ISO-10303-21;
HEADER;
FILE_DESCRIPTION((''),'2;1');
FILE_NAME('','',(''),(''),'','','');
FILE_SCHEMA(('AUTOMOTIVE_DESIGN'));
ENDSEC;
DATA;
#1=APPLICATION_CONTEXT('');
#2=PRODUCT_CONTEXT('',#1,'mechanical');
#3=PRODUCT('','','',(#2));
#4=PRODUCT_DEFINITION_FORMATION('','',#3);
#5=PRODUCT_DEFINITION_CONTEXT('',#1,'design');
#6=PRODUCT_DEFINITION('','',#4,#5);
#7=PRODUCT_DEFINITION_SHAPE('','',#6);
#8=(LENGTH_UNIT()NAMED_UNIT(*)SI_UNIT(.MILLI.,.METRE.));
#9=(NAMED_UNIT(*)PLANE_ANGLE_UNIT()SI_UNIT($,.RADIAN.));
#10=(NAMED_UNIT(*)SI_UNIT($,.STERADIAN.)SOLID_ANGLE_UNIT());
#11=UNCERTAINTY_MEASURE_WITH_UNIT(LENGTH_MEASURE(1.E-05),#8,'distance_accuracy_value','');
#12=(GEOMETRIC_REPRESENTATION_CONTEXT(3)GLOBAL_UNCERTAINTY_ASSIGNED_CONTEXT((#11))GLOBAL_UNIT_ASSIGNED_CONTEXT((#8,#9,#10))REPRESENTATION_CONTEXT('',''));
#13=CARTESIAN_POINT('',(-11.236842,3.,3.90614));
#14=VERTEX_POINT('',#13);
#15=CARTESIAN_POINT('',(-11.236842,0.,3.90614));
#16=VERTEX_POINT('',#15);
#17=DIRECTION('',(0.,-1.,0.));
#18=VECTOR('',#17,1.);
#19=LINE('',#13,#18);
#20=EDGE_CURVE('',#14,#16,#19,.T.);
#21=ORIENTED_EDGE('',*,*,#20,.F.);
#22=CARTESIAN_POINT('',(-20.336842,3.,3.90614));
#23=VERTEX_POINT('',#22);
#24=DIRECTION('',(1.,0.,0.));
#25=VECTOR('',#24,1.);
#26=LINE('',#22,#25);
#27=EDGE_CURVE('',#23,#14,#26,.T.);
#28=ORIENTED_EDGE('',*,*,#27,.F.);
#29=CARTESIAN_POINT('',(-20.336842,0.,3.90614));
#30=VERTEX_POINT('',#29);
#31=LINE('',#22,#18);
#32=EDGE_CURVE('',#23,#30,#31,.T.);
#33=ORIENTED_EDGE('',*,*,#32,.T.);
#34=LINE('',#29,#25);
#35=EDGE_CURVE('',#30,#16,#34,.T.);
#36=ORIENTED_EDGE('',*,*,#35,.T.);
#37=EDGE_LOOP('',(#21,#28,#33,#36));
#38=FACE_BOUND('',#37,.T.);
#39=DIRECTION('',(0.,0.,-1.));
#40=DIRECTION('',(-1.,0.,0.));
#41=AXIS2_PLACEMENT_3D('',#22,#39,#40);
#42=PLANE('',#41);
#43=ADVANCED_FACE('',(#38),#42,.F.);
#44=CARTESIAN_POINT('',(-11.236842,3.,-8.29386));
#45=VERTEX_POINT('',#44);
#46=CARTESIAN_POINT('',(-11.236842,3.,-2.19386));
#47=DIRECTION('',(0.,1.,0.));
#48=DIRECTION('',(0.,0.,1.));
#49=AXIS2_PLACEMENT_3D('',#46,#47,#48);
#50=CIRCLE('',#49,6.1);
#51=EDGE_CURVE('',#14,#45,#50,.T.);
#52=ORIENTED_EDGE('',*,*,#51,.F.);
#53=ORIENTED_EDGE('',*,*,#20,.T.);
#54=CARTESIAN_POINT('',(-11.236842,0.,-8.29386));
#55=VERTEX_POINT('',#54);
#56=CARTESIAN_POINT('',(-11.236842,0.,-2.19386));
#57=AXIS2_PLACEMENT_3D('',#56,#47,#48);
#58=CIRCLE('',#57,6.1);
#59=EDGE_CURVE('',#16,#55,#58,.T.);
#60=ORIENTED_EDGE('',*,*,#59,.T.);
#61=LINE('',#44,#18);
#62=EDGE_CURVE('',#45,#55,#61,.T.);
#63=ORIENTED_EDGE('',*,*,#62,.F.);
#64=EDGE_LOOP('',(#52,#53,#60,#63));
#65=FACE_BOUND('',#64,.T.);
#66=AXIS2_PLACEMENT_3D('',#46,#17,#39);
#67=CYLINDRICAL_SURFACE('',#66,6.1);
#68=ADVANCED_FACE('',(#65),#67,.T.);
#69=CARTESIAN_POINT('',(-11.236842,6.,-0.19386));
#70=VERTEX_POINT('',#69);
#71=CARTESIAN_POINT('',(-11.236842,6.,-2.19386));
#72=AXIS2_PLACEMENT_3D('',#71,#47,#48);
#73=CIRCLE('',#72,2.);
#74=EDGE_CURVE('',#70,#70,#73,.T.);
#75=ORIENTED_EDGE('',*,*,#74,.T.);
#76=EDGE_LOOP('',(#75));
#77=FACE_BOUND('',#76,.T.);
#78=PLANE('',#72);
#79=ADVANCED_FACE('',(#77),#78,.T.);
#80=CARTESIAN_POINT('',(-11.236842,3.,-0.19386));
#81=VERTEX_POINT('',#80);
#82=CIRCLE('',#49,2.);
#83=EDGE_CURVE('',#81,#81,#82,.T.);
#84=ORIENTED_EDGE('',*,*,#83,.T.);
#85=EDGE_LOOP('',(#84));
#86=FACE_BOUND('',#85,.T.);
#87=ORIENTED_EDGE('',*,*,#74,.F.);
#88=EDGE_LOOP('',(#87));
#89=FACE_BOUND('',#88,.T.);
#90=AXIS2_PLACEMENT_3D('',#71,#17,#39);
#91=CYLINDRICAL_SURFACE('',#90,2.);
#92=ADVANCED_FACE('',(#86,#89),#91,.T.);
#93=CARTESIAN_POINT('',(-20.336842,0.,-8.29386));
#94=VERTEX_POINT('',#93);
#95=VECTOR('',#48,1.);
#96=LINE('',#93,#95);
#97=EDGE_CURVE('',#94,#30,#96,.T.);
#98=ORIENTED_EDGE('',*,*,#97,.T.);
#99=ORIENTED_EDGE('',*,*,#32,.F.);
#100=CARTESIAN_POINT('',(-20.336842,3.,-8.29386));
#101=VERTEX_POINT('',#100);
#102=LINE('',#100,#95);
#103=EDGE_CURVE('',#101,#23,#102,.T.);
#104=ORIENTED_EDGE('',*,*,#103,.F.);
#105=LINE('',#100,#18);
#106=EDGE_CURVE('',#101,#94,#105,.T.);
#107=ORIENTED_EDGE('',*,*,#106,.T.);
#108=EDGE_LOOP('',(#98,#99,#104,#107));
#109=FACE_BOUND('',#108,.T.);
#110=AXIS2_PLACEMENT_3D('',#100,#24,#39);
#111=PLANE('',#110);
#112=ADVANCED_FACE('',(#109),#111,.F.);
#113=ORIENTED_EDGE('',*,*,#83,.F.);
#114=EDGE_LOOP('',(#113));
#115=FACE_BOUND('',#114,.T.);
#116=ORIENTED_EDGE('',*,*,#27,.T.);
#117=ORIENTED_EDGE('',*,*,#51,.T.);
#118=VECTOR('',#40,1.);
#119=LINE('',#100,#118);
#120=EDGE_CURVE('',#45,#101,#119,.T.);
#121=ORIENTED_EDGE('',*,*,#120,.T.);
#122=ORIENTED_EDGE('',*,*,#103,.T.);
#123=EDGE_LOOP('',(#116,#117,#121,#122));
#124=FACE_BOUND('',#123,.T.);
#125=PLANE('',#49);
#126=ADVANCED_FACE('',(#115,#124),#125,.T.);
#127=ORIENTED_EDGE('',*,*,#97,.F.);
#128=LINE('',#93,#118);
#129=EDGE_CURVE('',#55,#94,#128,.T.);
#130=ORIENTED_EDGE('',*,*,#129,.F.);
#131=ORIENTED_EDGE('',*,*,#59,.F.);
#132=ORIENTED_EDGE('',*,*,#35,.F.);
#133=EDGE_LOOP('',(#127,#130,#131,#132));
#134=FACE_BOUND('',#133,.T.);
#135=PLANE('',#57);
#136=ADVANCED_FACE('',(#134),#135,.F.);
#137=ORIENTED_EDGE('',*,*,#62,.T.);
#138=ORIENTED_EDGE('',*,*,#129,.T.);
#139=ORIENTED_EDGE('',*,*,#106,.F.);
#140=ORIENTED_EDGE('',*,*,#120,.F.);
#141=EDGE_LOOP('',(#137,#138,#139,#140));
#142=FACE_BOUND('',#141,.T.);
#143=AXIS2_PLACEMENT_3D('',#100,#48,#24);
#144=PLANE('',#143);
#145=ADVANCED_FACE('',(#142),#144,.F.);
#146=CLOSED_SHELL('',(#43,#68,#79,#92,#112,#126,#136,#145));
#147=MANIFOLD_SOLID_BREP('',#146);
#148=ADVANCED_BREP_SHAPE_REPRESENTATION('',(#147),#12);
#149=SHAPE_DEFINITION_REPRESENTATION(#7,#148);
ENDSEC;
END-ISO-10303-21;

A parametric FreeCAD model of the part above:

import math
import FreeCAD as App
import Part
import Sketcher

V = App.Vector
Q = App.Units.Quantity

doc = App.newDocument("Part")
params = doc.addObject("Spreadsheet::Sheet", "Params")
for row, (alias, value) in enumerate([
    ("sketch1_radius", "6.1 mm"),
    ("sketch1_width", "9.1 mm"),
    ("pad1_length", "3 mm"),
    ("sketch2_diameter", "4 mm"),
    ("pad2_length", "3 mm"),
], start=1):
    params.set(f"A{row}", alias)
    params.set(f"B{row}", "=" + value)
    params.setAlias(f"B{row}", alias)

body = doc.addObject("PartDesign::Body", "Body")

sketch1 = body.newObject("Sketcher::SketchObject", "Sketch")
sketch1.AttachmentSupport = (doc.getObject("XZ_Plane"), [""])
sketch1.MapMode = "FlatFace"
sketch1.addGeometry([
    Part.LineSegment(V(-11, -8, 0), V(-20, -8, 0)),
    Part.LineSegment(V(-20, -8, 0), V(-20, 4, 0)),
    Part.LineSegment(V(-20, 4, 0), V(-11, 4, 0)),
    Part.ArcOfCircle(Part.Circle(V(-11, -2, 0), V(0, 0, 1), 6), math.radians(-90), math.radians(90)),
], False)
sketch1.addConstraint([
    Sketcher.Constraint("Coincident", 0, 2, 1, 1),
    Sketcher.Constraint("Coincident", 1, 2, 2, 1),
    Sketcher.Constraint("Tangent", 2, 2, 3, 2),
    Sketcher.Constraint("Tangent", 3, 1, 0, 1),
    Sketcher.Constraint("Horizontal", 0),
    Sketcher.Constraint("Vertical", 1),
    Sketcher.Constraint("Horizontal", 2),
    Sketcher.Constraint("Radius", 3, Q("6.1 mm")),
    Sketcher.Constraint("DistanceX", 0, 2, 0, 1, Q("9.1 mm")),
    Sketcher.Constraint("DistanceY", 3, 3, -1, 1, Q("2.19386 mm")),
    Sketcher.Constraint("DistanceX", 3, 3, -1, 1, Q("11.236842 mm")),
])
sketch1.setExpression("Constraints[7]", "Params.sketch1_radius")
sketch1.setExpression("Constraints[8]", "Params.sketch1_width")
pad1 = body.newObject("PartDesign::Pad", "Pad")
pad1.Profile = sketch1
pad1.setExpression("Length", "Params.pad1_length")
pad1.Reversed = True

sketch2 = body.newObject("Sketcher::SketchObject", "Sketch001")
sketch2.AttachmentSupport = (doc.getObject("XZ_Plane"), [""])
sketch2.MapMode = "FlatFace"
sketch2.AttachmentOffset = App.Placement(V(0, 0, -3), App.Rotation())
sketch2.addGeometry(Part.Circle(V(-11.2, -2.2, 0), V(0, 0, 1), 2), False)
sketch2.addConstraint([
    Sketcher.Constraint("Diameter", 0, Q("4 mm")),
    Sketcher.Constraint("DistanceY", 0, 3, -1, 1, Q("2.19386 mm")),
    Sketcher.Constraint("DistanceX", 0, 3, -1, 1, Q("11.236842 mm")),
])
sketch2.setExpression("Constraints[0]", "Params.sketch2_diameter")
pad2 = body.newObject("PartDesign::Pad", "Pad001")
pad2.Profile = sketch2
pad2.setExpression("Length", "Params.pad2_length")
pad2.Reversed = True

doc.recompute()
